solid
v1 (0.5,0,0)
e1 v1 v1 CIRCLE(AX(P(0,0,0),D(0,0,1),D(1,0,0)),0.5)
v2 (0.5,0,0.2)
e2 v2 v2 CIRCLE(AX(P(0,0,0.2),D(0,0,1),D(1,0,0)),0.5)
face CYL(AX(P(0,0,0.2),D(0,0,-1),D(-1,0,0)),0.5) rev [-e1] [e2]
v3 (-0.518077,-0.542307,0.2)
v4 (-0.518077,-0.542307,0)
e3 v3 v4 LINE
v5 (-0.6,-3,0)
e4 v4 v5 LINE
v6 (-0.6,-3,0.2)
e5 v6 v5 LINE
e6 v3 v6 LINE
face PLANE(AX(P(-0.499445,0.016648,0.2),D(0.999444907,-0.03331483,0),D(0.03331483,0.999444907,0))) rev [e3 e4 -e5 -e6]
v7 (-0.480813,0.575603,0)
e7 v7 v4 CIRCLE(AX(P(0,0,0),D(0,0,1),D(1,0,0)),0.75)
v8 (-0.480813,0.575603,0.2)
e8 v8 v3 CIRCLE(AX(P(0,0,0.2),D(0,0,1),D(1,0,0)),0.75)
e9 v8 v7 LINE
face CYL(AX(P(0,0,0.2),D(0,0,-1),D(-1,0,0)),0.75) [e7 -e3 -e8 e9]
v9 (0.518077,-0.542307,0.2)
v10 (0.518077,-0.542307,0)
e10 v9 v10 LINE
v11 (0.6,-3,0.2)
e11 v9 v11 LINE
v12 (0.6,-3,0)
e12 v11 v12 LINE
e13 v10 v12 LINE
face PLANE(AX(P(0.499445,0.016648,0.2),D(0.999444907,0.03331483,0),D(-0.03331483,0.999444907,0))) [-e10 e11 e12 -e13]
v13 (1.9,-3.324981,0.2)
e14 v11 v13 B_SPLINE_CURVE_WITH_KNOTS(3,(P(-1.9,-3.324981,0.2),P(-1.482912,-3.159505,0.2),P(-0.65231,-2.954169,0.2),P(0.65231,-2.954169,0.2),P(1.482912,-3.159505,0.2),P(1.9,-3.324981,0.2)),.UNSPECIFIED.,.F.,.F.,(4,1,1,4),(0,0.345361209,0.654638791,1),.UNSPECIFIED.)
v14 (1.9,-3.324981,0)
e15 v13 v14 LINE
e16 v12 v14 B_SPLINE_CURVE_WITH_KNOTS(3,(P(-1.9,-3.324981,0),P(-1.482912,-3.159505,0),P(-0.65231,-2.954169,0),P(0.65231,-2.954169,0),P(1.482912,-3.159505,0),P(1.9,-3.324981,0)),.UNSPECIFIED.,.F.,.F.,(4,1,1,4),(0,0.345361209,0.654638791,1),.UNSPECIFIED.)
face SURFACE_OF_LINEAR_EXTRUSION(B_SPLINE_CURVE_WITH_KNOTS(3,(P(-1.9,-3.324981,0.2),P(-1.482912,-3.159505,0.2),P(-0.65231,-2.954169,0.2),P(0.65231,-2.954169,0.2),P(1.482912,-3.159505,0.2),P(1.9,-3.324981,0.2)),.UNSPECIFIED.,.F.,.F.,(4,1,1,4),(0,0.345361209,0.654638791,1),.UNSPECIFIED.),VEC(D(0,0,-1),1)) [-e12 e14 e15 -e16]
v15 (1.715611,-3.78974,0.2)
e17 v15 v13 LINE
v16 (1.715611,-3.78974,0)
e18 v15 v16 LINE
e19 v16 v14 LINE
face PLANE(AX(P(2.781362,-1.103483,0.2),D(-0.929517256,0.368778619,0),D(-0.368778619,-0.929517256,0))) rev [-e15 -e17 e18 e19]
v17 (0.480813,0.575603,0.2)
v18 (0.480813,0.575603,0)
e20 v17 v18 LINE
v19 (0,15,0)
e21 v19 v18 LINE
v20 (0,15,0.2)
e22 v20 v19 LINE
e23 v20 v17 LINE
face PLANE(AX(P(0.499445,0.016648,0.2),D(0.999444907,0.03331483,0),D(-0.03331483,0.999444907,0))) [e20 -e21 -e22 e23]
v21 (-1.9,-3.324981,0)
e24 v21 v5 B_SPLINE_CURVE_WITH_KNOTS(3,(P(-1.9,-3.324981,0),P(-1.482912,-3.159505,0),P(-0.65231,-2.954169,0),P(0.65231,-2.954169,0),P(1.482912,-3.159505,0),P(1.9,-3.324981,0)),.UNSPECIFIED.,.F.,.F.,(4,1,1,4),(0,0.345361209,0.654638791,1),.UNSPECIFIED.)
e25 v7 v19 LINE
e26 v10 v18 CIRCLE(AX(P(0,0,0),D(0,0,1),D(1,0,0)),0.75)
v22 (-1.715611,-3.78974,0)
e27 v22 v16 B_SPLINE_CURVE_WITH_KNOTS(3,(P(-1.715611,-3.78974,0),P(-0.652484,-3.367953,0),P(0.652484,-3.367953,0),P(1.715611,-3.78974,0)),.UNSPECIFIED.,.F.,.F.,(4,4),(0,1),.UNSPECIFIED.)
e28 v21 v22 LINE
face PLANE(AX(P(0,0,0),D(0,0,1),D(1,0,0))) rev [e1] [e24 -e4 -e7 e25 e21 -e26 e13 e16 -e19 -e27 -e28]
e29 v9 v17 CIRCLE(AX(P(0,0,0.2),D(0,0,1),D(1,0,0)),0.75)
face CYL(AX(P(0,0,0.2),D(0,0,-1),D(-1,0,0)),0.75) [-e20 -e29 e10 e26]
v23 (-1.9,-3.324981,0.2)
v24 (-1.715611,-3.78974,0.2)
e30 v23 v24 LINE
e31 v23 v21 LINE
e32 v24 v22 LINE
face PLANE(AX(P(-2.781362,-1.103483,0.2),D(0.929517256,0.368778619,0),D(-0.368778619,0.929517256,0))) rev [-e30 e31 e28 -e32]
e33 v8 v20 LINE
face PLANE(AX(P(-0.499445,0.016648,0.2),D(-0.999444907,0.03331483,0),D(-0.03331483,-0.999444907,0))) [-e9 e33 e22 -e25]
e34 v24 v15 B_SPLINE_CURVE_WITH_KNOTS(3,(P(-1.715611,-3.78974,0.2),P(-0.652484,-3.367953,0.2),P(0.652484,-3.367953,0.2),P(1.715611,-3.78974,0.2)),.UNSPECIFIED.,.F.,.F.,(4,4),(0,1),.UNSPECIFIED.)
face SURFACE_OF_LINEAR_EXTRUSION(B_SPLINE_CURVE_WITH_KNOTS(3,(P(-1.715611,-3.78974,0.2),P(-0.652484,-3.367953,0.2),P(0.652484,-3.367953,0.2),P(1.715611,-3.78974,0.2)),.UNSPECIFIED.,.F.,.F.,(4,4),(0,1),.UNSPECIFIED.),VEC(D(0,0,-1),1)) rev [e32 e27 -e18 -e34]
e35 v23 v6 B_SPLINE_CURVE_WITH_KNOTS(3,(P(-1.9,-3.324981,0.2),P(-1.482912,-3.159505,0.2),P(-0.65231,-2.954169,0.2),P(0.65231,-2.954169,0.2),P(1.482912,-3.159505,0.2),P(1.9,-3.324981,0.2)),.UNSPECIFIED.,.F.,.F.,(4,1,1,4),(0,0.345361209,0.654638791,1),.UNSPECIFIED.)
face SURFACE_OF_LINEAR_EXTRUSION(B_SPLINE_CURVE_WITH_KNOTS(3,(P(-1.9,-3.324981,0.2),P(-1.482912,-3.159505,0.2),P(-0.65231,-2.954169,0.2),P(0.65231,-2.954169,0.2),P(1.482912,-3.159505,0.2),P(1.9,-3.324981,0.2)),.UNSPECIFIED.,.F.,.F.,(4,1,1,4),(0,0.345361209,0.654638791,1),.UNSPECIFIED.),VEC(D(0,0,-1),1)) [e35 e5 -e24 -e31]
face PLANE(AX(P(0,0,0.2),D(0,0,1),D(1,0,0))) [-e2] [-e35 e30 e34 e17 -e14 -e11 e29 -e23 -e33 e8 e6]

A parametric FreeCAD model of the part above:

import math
import FreeCAD as App
import Part
import Sketcher
Q = App.Units.Quantity

doc = App.newDocument("Part")
params = doc.addObject("Spreadsheet::Sheet", "Params")
for row, (alias, value) in enumerate([
    ("sketch1_diameter", "1 mm"),
    ("sketch1_radius", "0.75 mm"),
    ("pad1_length", "0.2 mm"),
], start=1):
    params.set(f"A{row}", alias)
    params.set(f"B{row}", "=" + value)
    params.setAlias(f"B{row}", alias)

body = doc.addObject("PartDesign::Body", "Body")

# Sketch on XY plane
sketch1 = doc.addObject("Sketcher::SketchObject", "Sketch")
body.addObject(sketch1)
sketch1.AttachmentSupport = (doc.XY_Plane, [""])
sketch1.MapMode = "FlatFace"
sketch1.addGeometry([
    Part.LineSegment(App.Vector(0.480813, 0.575603, 0), App.Vector(0, 15, 0)),  # 0
    Part.LineSegment(App.Vector(0, 15, 0), App.Vector(-0.480813, 0.575603, 0)),  # 1
    Part.ArcOfCircle(Part.Circle(App.Vector(0, 0, 0), App.Vector(0, 0, 1), 0.75), math.radians(129.872722), math.radians(226.308973)),  # 2
    Part.LineSegment(App.Vector(-0.518077, -0.542307, 0), App.Vector(-0.6, -3, 0)),  # 3
    Part.BSplineCurve([App.Vector(-1.9, -3.324981, 0), App.Vector(-1.482912, -3.159505, 0), App.Vector(-1.04472, -3.051178, 0), App.Vector(-0.6, -3, 0)], [4, 4], [0, 0.345361209], False, 3, [1, 1, 1, 1], False),  # 4
    Part.LineSegment(App.Vector(-1.9, -3.324981, 0), App.Vector(-1.715611, -3.78974, 0)),  # 5
    Part.BSplineCurve([App.Vector(-1.715611, -3.78974, 0), App.Vector(-0.652484, -3.367953, 0), App.Vector(0.652484, -3.367953, 0), App.Vector(1.715611, -3.78974, 0)], [4, 4], [0, 1], False, 3, [1, 1, 1, 1], False),  # 6
    Part.LineSegment(App.Vector(1.715611, -3.78974, 0), App.Vector(1.9, -3.324981, 0)),  # 7
    Part.BSplineCurve([App.Vector(0.6, -3, 0), App.Vector(1.04472, -3.051178, 0), App.Vector(1.482912, -3.159505, 0), App.Vector(1.9, -3.324981, 0)], [4, 4], [0.654638791, 1], False, 3, [1, 1, 1, 1], False),  # 8
    Part.LineSegment(App.Vector(0.6, -3, 0), App.Vector(0.518077, -0.542307, 0)),  # 9
    Part.ArcOfCircle(Part.Circle(App.Vector(0, 0, 0), App.Vector(0, 0, 1), 0.75), math.radians(-46.308973), math.radians(50.127278)),  # 10
    Part.Circle(App.Vector(0, 0, 0), App.Vector(0, 0, 1), 0.5),  # 11
], False)
sketch1.addConstraint([
    Sketcher.Constraint("Block", 4),
    Sketcher.Constraint("Block", 6),
    Sketcher.Constraint("Block", 8),
    Sketcher.Constraint("Coincident", 0, 2, 1, 1),
    Sketcher.Constraint("Coincident", 1, 2, 2, 1),
    Sketcher.Constraint("Coincident", 2, 2, 3, 1),
    Sketcher.Constraint("Coincident", 3, 2, 4, 2),
    Sketcher.Constraint("Coincident", 4, 1, 5, 1),
    Sketcher.Constraint("Coincident", 5, 2, 6, 1),
    Sketcher.Constraint("Coincident", 6, 2, 7, 1),
    Sketcher.Constraint("Coincident", 7, 2, 8, 2),
    Sketcher.Constraint("Coincident", 8, 1, 9, 1),
    Sketcher.Constraint("Coincident", 9, 2, 10, 1),
    Sketcher.Constraint("Coincident", 10, 2, 0, 1),
    Sketcher.Constraint("Coincident", 2, 3, -1, 1),
    Sketcher.Constraint("Coincident", 10, 3, -1, 1),
    Sketcher.Constraint("Coincident", 11, 3, -1, 1),
    Sketcher.Constraint("Equal", 2, 10),
    Sketcher.Constraint("PointOnObject", 0, 2, -2),
    Sketcher.Constraint("Parallel", 1, 3),
    Sketcher.Constraint("Parallel", 0, 9),
    Sketcher.Constraint("Horizontal", 2, 2, 9, 2),
    Sketcher.Constraint("Diameter", 11, Q("1 mm")),
    Sketcher.Constraint("Radius", 2, Q("0.75 mm")),
    Sketcher.Constraint("DistanceY", -1, 1, 0, 2, Q("15 mm")),
    Sketcher.Constraint("Distance", 0, Q("14.432408 mm")),
])
sketch1.setExpression("Constraints[22]", "Params.sketch1_diameter")
sketch1.setExpression("Constraints[23]", "Params.sketch1_radius")
pad1 = doc.addObject("PartDesign::Pad", "Pad")
body.addObject(pad1)
pad1.Profile = sketch1
pad1.setExpression("Length", "Params.pad1_length")

doc.recompute()
